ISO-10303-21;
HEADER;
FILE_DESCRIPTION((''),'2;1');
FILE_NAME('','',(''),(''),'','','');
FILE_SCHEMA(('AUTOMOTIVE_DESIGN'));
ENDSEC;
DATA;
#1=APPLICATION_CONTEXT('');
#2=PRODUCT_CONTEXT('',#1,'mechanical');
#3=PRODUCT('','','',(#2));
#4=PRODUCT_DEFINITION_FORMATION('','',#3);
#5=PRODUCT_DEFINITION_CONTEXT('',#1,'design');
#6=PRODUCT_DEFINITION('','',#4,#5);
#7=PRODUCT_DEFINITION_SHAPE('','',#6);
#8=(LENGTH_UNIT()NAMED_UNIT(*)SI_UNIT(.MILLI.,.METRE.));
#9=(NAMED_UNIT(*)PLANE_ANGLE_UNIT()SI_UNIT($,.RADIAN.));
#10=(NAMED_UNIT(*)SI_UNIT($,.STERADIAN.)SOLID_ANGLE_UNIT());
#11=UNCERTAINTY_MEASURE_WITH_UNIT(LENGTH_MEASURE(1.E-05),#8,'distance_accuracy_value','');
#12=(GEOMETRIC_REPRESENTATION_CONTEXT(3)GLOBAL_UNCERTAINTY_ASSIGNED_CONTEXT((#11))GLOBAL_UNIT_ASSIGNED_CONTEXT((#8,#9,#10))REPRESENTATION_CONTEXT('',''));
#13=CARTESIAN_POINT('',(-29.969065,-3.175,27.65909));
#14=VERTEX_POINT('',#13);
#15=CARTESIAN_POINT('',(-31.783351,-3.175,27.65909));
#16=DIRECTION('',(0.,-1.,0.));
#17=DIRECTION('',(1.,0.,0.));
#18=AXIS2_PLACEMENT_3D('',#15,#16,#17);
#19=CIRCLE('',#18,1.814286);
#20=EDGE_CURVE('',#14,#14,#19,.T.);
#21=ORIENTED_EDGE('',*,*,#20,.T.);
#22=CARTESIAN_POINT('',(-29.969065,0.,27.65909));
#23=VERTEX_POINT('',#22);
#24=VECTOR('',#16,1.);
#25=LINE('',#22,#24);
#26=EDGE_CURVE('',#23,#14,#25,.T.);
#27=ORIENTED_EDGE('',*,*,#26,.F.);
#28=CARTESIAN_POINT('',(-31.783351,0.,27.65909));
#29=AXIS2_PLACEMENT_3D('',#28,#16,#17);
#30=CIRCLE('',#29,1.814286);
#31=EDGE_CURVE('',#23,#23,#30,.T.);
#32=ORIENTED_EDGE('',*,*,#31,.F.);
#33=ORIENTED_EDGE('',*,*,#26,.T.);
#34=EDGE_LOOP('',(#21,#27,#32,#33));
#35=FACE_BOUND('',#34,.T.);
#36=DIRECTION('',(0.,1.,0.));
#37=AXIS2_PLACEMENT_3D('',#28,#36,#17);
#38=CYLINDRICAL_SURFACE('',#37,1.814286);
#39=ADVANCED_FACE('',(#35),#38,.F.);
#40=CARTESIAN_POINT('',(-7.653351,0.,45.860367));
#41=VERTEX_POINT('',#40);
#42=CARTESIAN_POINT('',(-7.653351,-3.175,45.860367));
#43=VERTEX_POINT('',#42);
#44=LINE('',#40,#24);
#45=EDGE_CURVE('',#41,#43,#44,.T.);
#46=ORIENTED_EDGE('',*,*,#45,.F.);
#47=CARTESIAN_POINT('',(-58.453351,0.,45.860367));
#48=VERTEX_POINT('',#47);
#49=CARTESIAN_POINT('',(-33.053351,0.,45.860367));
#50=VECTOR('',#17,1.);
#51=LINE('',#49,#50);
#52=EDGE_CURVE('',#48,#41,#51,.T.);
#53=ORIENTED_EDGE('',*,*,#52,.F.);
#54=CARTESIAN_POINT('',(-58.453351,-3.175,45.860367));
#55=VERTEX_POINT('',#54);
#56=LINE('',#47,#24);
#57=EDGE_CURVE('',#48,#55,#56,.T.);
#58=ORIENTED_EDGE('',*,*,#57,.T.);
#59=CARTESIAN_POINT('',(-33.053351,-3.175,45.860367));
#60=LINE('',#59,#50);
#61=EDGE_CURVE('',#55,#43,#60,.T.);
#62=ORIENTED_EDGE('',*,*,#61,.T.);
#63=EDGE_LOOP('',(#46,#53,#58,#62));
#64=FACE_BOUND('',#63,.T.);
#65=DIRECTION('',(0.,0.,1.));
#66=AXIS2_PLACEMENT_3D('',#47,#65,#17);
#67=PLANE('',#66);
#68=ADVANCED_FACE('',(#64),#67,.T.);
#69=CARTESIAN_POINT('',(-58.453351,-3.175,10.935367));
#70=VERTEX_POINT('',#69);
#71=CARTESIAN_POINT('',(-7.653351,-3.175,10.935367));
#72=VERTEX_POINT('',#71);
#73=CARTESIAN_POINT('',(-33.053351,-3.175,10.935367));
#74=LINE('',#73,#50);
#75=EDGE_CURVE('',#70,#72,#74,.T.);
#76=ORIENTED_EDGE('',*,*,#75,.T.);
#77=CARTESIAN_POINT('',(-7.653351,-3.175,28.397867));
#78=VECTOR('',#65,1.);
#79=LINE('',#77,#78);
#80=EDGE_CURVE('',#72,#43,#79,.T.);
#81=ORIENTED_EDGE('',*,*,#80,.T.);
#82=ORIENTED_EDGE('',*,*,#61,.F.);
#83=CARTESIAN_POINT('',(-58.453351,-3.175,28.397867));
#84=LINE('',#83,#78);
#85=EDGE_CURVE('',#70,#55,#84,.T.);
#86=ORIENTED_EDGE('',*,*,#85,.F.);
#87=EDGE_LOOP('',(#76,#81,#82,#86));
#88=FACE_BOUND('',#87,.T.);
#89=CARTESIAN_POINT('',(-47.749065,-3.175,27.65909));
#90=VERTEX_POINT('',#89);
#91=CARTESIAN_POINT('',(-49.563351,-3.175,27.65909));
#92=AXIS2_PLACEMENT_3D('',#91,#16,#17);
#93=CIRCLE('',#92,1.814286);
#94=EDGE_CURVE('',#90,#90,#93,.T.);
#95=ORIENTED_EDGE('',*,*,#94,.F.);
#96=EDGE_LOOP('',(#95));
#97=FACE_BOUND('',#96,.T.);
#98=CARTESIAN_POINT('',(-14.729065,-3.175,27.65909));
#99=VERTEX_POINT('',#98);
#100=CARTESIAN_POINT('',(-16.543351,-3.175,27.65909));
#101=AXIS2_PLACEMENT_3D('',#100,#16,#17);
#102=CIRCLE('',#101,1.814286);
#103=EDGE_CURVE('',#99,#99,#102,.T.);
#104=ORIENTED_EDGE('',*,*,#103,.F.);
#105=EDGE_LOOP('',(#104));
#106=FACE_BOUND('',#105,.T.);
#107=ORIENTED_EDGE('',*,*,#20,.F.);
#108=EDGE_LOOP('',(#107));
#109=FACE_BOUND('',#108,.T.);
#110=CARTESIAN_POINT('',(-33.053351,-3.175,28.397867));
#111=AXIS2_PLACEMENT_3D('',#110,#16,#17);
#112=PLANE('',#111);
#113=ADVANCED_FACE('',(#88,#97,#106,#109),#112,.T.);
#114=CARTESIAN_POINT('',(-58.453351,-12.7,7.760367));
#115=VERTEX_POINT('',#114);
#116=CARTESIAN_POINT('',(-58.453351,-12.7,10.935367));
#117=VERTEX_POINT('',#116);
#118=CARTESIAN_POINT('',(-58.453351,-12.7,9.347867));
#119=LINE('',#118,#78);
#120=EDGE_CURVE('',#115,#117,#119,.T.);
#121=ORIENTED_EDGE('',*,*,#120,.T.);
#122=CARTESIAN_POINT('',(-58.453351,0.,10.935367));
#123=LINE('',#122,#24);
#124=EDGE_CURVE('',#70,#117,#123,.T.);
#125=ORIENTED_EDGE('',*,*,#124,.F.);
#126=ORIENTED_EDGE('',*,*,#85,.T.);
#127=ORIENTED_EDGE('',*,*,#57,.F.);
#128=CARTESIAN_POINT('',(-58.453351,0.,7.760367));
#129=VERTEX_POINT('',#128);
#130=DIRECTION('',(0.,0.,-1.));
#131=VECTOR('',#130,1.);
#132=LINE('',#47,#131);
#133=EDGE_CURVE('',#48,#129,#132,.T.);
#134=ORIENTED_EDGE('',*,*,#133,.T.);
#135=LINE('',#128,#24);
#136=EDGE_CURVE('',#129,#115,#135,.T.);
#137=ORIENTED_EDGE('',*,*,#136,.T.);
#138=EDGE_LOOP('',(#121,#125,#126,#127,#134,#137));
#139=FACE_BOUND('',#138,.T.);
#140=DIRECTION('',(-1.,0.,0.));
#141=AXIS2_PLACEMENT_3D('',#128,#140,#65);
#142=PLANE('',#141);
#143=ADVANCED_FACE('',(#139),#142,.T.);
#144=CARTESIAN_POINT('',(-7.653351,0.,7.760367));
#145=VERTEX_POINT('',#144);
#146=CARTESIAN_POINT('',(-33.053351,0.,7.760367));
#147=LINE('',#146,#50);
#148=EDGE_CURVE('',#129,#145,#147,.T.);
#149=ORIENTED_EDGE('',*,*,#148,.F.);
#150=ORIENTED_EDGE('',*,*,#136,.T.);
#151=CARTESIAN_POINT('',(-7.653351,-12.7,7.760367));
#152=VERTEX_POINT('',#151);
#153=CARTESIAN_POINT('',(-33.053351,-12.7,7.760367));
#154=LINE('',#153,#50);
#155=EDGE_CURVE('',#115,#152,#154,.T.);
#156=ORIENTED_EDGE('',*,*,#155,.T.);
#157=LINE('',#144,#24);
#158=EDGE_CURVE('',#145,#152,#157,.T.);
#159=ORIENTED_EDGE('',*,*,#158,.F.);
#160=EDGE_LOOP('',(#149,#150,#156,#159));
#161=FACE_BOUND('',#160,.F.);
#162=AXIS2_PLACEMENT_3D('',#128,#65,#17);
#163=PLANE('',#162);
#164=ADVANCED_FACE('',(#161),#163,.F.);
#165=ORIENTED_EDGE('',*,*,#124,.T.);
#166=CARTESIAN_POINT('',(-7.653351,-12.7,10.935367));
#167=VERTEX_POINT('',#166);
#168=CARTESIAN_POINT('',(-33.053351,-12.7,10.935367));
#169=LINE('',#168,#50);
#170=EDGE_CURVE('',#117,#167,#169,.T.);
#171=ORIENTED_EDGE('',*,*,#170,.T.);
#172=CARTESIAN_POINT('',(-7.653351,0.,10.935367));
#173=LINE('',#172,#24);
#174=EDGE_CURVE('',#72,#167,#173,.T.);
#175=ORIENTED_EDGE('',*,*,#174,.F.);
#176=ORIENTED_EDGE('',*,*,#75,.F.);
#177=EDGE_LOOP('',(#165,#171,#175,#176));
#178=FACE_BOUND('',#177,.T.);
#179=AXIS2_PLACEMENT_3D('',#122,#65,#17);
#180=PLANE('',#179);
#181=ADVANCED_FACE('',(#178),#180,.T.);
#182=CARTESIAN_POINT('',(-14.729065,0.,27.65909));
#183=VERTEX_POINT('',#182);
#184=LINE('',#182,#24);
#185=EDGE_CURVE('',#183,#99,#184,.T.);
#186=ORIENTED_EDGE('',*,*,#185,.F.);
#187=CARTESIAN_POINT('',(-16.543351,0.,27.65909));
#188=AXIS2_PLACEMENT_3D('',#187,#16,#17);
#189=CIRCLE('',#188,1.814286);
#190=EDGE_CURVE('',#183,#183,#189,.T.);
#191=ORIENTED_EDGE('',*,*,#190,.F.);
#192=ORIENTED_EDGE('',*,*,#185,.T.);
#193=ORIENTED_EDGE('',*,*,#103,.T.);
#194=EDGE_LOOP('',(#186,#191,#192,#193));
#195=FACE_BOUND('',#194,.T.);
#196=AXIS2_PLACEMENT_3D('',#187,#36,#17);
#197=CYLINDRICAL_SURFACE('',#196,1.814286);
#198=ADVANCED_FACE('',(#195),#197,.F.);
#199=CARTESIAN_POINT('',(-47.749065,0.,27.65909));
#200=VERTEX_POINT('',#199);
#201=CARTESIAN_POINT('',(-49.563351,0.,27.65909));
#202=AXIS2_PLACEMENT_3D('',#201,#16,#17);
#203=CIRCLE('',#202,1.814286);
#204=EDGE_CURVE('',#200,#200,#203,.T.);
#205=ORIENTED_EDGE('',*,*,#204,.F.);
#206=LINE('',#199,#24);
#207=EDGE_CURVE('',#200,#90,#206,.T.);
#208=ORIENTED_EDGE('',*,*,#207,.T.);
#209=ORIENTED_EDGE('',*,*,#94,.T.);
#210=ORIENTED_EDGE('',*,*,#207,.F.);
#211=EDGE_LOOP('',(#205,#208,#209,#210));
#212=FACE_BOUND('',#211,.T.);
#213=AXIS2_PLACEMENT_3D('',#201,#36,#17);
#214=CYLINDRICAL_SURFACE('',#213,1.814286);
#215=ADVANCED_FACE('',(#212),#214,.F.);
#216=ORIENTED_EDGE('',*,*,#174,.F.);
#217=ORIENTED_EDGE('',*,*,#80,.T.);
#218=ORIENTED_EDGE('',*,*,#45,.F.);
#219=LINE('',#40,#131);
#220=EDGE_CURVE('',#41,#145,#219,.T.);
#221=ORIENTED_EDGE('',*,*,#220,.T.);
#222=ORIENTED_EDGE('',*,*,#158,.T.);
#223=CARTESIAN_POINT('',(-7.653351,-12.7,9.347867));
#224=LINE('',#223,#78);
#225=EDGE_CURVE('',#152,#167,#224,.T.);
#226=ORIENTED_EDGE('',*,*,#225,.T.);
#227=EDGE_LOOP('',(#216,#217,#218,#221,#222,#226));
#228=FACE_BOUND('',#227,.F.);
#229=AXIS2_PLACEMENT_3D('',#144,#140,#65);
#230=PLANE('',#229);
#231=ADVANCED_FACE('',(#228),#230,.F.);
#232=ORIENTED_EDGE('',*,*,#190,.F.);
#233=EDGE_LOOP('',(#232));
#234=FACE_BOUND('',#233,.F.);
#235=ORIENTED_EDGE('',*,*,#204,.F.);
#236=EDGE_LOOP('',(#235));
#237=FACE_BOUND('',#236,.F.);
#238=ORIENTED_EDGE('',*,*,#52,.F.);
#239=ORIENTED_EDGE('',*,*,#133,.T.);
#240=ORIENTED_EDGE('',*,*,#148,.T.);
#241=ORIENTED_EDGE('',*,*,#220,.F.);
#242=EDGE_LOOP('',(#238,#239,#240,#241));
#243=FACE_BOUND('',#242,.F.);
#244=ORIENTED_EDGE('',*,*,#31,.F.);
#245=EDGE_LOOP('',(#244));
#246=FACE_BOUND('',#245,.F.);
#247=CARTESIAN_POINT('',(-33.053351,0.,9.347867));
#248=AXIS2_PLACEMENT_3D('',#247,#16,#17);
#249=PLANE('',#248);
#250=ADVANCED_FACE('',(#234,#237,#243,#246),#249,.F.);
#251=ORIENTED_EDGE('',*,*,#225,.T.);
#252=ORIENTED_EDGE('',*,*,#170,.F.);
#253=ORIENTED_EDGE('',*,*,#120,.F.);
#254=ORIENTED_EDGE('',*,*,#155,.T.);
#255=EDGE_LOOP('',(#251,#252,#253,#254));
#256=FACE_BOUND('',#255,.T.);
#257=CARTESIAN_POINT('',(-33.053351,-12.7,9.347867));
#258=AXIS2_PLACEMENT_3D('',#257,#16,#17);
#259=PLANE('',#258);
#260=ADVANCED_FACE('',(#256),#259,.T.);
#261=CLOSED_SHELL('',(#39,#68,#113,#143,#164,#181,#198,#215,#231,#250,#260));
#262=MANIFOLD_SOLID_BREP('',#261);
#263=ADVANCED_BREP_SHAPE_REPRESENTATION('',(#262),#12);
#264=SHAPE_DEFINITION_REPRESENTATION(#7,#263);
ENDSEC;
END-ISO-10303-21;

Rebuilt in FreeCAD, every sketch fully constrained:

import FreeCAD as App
import Part
import Sketcher
from FreeCAD import Vector
Q = App.Units.Quantity

doc = App.newDocument("Part")
params = doc.addObject("Spreadsheet::Sheet", "Params")
for row, (alias, value) in enumerate([
    ("sketch1_width", "2 in"),
    ("sketch1_height", "1.375 in"),
    ("pad1_length", "0.125 in"),
    ("sketch2_width", "2 in"),
    ("sketch2_height", "0.125 in"),
    ("pad2_length", "0.5 in"),
], start=1):
    params.set(f"A{row}", alias)
    params.set(f"B{row}", "=" + value)
    params.setAlias(f"B{row}", alias)

body = doc.addObject("PartDesign::Body", "Body")

# Sketch on XZ plane
sketch1 = body.newObject("Sketcher::SketchObject", "Sketch")
sketch1.AttachmentSupport = (doc.getObject("XZ_Plane"), [""])
sketch1.MapMode = "FlatFace"
sketch1.addGeometry(Part.LineSegment(Vector(-58.5, 45.9, 0), Vector(-58.5, 10.9, 0)), False)
sketch1.addGeometry(Part.LineSegment(Vector(-58.5, 10.9, 0), Vector(-7.7, 10.9, 0)), False)
sketch1.addGeometry(Part.LineSegment(Vector(-7.7, 10.9, 0), Vector(-7.7, 45.9, 0)), False)
sketch1.addGeometry(Part.LineSegment(Vector(-7.7, 45.9, 0), Vector(-58.5, 45.9, 0)), False)
sketch1.addGeometry(Part.Circle(Vector(-49.6, 27.7, 0), Vector(0, 0, 1), 1.8), False)
sketch1.addGeometry(Part.Circle(Vector(-31.8, 27.7, 0), Vector(0, 0, 1), 1.8), False)
sketch1.addGeometry(Part.Circle(Vector(-16.5, 27.7, 0), Vector(0, 0, 1), 1.8), False)
sketch1.addConstraint(Sketcher.Constraint("Coincident", 0, 2, 1, 1))
sketch1.addConstraint(Sketcher.Constraint("Coincident", 1, 2, 2, 1))
sketch1.addConstraint(Sketcher.Constraint("Coincident", 2, 2, 3, 1))
sketch1.addConstraint(Sketcher.Constraint("Coincident", 3, 2, 0, 1))
sketch1.addConstraint(Sketcher.Constraint("Vertical", 0))
sketch1.addConstraint(Sketcher.Constraint("Horizontal", 1))
sketch1.addConstraint(Sketcher.Constraint("Vertical", 2))
sketch1.addConstraint(Sketcher.Constraint("Horizontal", 3))
sketch1.addConstraint(Sketcher.Constraint("Equal", 4, 5))
sketch1.addConstraint(Sketcher.Constraint("Equal", 5, 6))
sketch1.addConstraint(Sketcher.Constraint("Horizontal", 4, 3, 5, 3))
sketch1.addConstraint(Sketcher.Constraint("Horizontal", 5, 3, 6, 3))
sketch1.addConstraint(Sketcher.Constraint("DistanceX", 1, 1, 1, 2, Q("2 in")))
sketch1.addConstraint(Sketcher.Constraint("DistanceX", 4, 3, 5, 3, Q("0.7 in")))
sketch1.addConstraint(Sketcher.Constraint("DistanceX", 5, 3, 6, 3, Q("0.6 in")))
sketch1.addConstraint(Sketcher.Constraint("DistanceY", 0, 2, 0, 1, Q("1.375 in")))
sketch1.addConstraint(Sketcher.Constraint("DistanceX", 0, 2, 4, 3, Q("0.35 in")))
sketch1.addConstraint(Sketcher.Constraint("Diameter", 4, 3.628572))
sketch1.addConstraint(Sketcher.Constraint("DistanceX", 4, 3, -1, 1, 49.563351))
sketch1.addConstraint(Sketcher.Constraint("DistanceY", -1, 1, 4, 3, 27.65909))
sketch1.addConstraint(Sketcher.Constraint("DistanceY", -1, 1, 0, 2, 10.935367))
sketch1.setExpression("Constraints[12]", "Params.sketch1_width")
sketch1.setExpression("Constraints[15]", "Params.sketch1_height")
pad1 = body.newObject("PartDesign::Pad", "Pad")
pad1.Profile = sketch1
pad1.setExpression("Length", "Params.pad1_length")

# Sketch on XZ plane
sketch2 = body.newObject("Sketcher::SketchObject", "Sketch001")
sketch2.AttachmentSupport = (doc.getObject("XZ_Plane"), [""])
sketch2.MapMode = "FlatFace"
sketch2.addGeometry(Part.LineSegment(Vector(-58.5, 10.9, 0), Vector(-58.5, 7.8, 0)), False)
sketch2.addGeometry(Part.LineSegment(Vector(-58.5, 7.8, 0), Vector(-7.7, 7.8, 0)), False)
sketch2.addGeometry(Part.LineSegment(Vector(-7.7, 7.8, 0), Vector(-7.7, 10.9, 0)), False)
sketch2.addGeometry(Part.LineSegment(Vector(-7.7, 10.9, 0), Vector(-58.5, 10.9, 0)), False)
sketch2.addConstraint(Sketcher.Constraint("Coincident", 0, 2, 1, 1))
sketch2.addConstraint(Sketcher.Constraint("Coincident", 1, 2, 2, 1))
sketch2.addConstraint(Sketcher.Constraint("Coincident", 2, 2, 3, 1))
sketch2.addConstraint(Sketcher.Constraint("Coincident", 3, 2, 0, 1))
sketch2.addConstraint(Sketcher.Constraint("Vertical", 0))
sketch2.addConstraint(Sketcher.Constraint("Horizontal", 1))
sketch2.addConstraint(Sketcher.Constraint("Vertical", 2))
sketch2.addConstraint(Sketcher.Constraint("Horizontal", 3))
sketch2.addConstraint(Sketcher.Constraint("DistanceX", 1, 1, 1, 2, Q("2 in")))
sketch2.addConstraint(Sketcher.Constraint("DistanceY", 0, 2, 0, 1, Q("0.125 in")))
sketch2.addConstraint(Sketcher.Constraint("DistanceX", 0, 2, -1, 1, 58.453351))
sketch2.addConstraint(Sketcher.Constraint("DistanceY", -1, 1, 0, 2, 7.760367))
sketch2.setExpression("Constraints[8]", "Params.sketch2_width")
sketch2.setExpression("Constraints[9]", "Params.sketch2_height")
pad2 = body.newObject("PartDesign::Pad", "Pad001")
pad2.Profile = sketch2
pad2.setExpression("Length", "Params.pad2_length")

doc.recompute()
